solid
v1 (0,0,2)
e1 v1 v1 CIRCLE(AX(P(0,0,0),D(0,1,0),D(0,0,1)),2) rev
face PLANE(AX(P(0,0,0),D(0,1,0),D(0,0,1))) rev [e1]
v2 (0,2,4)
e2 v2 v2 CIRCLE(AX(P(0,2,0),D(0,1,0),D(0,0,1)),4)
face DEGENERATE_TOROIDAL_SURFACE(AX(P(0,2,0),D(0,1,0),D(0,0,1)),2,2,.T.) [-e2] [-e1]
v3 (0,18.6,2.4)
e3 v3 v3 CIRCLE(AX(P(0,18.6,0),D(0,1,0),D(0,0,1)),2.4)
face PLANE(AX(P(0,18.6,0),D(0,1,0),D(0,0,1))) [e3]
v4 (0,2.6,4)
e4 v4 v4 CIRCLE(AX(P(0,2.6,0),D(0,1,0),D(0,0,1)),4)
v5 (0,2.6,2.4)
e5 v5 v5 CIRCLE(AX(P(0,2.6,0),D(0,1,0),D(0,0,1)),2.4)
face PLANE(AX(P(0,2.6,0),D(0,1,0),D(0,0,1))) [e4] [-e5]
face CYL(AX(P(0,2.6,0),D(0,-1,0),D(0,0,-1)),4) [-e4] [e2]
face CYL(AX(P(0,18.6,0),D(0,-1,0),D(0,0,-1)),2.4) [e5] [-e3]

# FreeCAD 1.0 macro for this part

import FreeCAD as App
import Part
import Sketcher

V = App.Vector


def edges_at(feature, points):
    """Names of the edges that pass closest to the given points."""
    edges = feature.Shape.Edges
    near = lambda p: min(range(len(edges)), key=lambda i: edges[i].distToShape(Part.Vertex(*p))[0])
    return sorted({f"Edge{near(p) + 1}" for p in points})

doc = App.newDocument("Part")
body = doc.addObject("PartDesign::Body", "Body")

sketch1 = body.newObject("Sketcher::SketchObject", "Sketch")
sketch1.AttachmentSupport = (doc.getObject("XZ_Plane"), [""])
sketch1.MapMode = "FlatFace"
sketch1.addGeometry(Part.Circle(V(0, 0, 0), V(0, 0, 1), 4), False)
sketch1.addConstraint(Sketcher.Constraint("Coincident", 0, 3, -1, 1))
sketch1.addConstraint(Sketcher.Constraint("Diameter", 0, 8.0))
pad1 = body.newObject("PartDesign::Pad", "Pad")
pad1.Profile = sketch1
pad1.Length = 2.6
pad1.Reversed = True

sketch2 = body.newObject("Sketcher::SketchObject", "Sketch001")
sketch2.AttachmentSupport = (doc.getObject("XZ_Plane"), [""])
sketch2.MapMode = "FlatFace"
sketch2.AttachmentOffset = App.Placement(V(0, 0, -2.6), App.Rotation())
sketch2.addGeometry(Part.Circle(V(0, 0, 0), V(0, 0, 1), 2.4), False)
sketch2.addConstraint(Sketcher.Constraint("Coincident", 0, 3, -1, 1))
sketch2.addConstraint(Sketcher.Constraint("Diameter", 0, 4.8))
pad2 = body.newObject("PartDesign::Pad", "Pad001")
pad2.Profile = sketch2
pad2.Length = 16
pad2.Reversed = True
doc.recompute()

fillet = body.newObject("PartDesign::Fillet", "Fillet")
fillet.Base = (pad2, edges_at(pad2, [(-4, 0, 0)]))
fillet.Radius = 2

doc.recompute()
